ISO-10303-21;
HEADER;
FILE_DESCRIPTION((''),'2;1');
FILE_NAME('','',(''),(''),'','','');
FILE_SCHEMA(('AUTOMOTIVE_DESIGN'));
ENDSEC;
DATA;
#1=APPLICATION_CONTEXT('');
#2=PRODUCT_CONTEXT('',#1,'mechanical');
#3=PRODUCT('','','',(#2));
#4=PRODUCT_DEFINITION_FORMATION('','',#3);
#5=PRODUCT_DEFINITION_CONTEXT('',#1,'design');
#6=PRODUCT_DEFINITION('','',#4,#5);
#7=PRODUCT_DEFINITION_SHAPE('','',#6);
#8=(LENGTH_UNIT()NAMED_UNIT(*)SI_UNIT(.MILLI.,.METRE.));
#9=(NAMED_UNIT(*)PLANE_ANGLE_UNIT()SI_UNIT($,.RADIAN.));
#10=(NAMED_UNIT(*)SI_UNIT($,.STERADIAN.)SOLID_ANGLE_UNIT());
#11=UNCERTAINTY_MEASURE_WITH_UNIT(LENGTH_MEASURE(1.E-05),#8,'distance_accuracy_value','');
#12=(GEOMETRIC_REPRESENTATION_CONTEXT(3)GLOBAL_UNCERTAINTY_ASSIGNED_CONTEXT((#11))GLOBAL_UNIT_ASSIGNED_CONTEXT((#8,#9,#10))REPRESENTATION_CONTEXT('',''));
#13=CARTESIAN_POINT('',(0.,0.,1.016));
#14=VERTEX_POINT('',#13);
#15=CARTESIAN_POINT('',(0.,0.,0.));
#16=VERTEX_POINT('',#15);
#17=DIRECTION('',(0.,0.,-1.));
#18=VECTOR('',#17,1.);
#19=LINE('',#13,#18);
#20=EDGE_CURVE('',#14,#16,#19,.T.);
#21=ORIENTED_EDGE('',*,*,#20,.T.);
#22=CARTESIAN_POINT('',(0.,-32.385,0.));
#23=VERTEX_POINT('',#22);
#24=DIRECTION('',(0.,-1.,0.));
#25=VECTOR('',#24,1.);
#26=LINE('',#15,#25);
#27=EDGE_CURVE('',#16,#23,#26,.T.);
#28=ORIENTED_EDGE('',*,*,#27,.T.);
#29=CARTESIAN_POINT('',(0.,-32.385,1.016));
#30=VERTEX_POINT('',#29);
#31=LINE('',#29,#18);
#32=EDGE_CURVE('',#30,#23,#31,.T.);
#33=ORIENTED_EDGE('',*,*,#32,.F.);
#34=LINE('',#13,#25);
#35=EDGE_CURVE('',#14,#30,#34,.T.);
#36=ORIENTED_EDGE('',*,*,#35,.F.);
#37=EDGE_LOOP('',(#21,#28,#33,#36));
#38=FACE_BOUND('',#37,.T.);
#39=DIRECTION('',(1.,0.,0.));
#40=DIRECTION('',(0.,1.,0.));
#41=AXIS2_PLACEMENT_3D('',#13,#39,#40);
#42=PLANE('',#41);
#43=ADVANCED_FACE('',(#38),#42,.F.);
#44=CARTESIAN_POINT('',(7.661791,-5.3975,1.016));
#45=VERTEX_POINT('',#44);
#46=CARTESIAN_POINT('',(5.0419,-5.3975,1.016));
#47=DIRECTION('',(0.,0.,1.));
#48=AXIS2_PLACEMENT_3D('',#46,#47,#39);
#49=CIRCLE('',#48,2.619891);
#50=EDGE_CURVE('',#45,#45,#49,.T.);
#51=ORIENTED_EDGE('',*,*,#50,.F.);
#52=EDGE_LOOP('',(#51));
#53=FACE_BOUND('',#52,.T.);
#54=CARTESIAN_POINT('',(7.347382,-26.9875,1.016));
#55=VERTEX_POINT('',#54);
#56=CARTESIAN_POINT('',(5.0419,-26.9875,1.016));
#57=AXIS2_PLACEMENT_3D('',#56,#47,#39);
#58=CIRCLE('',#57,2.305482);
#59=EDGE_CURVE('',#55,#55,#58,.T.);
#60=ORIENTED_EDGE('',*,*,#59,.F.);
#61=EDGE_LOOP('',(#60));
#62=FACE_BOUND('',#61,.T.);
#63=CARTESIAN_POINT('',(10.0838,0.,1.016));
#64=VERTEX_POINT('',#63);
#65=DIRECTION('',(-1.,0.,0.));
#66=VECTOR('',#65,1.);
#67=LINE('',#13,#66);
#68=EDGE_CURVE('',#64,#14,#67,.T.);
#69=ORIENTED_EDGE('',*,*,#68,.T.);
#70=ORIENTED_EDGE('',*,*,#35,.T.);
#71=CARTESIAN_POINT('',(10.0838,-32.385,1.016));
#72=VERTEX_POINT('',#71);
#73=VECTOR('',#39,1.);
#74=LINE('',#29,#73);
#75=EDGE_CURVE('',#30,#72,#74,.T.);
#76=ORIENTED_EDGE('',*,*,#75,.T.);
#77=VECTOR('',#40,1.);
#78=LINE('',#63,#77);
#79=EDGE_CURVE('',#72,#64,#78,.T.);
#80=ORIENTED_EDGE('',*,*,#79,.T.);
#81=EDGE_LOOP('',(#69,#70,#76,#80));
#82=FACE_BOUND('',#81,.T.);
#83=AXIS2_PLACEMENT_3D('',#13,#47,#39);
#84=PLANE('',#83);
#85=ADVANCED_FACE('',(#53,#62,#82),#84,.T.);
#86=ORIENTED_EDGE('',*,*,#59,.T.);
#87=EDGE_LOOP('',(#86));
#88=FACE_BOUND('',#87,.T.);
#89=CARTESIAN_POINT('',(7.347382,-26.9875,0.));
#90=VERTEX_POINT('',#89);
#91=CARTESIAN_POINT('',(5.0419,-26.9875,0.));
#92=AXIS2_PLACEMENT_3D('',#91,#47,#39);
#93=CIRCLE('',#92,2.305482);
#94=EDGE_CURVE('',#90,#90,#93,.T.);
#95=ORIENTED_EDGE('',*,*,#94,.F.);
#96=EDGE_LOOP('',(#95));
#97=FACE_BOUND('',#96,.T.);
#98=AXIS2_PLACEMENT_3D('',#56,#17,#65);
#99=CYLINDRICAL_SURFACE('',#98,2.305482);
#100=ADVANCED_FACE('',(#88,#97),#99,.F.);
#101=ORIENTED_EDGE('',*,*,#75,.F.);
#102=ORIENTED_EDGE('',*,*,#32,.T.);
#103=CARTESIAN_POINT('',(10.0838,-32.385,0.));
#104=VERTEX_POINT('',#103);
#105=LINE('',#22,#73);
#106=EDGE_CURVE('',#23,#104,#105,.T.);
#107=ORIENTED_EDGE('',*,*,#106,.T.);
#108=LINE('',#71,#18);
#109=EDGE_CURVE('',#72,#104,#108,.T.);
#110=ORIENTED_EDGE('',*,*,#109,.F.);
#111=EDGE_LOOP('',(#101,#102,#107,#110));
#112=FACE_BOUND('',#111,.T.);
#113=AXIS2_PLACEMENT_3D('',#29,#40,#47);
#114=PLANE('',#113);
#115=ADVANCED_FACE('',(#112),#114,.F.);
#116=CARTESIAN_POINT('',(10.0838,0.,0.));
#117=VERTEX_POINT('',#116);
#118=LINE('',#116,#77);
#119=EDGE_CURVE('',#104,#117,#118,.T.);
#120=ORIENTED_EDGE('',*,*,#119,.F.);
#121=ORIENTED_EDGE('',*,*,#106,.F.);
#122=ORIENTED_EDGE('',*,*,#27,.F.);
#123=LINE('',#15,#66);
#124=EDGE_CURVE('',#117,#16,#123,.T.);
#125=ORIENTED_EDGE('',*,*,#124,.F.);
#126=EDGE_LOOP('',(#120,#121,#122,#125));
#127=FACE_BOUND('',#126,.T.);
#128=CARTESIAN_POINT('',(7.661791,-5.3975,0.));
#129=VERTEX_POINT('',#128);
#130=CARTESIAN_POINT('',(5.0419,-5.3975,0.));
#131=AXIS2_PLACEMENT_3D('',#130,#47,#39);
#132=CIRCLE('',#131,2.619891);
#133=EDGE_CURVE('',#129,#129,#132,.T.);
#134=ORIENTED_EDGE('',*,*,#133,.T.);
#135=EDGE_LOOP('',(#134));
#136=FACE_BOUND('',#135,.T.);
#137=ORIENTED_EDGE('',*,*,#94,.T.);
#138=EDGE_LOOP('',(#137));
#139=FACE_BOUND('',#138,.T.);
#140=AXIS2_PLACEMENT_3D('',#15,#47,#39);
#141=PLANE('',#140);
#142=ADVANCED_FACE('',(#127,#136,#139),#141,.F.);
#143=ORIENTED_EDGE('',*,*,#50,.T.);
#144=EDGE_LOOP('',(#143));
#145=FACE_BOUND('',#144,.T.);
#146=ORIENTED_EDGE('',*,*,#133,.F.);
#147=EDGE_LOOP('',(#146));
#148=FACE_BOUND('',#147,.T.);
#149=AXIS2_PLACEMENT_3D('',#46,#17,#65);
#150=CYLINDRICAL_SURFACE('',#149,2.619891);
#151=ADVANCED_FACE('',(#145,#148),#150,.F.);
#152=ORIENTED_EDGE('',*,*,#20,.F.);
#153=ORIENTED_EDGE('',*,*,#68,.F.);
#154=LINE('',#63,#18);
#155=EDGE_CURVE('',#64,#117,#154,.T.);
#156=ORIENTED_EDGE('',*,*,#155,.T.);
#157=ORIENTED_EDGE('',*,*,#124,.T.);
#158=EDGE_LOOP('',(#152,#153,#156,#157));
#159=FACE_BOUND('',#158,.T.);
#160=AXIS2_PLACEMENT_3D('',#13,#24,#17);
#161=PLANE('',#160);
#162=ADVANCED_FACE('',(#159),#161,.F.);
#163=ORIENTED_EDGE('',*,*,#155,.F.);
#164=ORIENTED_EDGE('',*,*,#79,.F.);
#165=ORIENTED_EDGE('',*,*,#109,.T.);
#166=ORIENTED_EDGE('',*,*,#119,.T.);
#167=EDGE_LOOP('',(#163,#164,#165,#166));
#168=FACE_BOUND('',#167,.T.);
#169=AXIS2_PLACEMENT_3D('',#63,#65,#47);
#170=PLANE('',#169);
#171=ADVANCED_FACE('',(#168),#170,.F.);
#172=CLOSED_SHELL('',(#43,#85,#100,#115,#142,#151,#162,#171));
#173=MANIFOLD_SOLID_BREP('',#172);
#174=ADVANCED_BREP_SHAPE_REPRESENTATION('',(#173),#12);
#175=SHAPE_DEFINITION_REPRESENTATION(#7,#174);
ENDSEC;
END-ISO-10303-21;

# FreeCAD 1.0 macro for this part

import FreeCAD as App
import Part
import Sketcher
Q = App.Units.Quantity


def add_polygon(sketch, points):
    """Adds a closed chain of lines whose ends are joined by coincident constraints."""
    first, n = sketch.GeometryCount, len(points)
    for a, b in zip(points, points[1:] + points[:1]):
        sketch.addGeometry(Part.LineSegment(App.Vector(*a, 0), App.Vector(*b, 0)), False)
    for i in range(n):
        sketch.addConstraint(Sketcher.Constraint("Coincident", first + i, 2, first + (i + 1) % n, 1))

doc = App.newDocument("Part")
body = doc.addObject("PartDesign::Body", "Body")

sketch1 = doc.addObject("Sketcher::SketchObject", "Sketch")
body.addObject(sketch1)
sketch1.AttachmentSupport = (doc.XY_Plane, [""])
sketch1.MapMode = "FlatFace"
add_polygon(sketch1, [(0, 0), (0, -32.4), (10.1, -32.4), (10.1, 0)])
sketch1.addGeometry(Part.Circle(App.Vector(5, -27, 0), App.Vector(0, 0, 1), 2.3), False)
sketch1.addGeometry(Part.Circle(App.Vector(5, -5.4, 0), App.Vector(0, 0, 1), 2.6), False)
sketch1.addConstraint(Sketcher.Constraint("Vertical", 0))
sketch1.addConstraint(Sketcher.Constraint("Horizontal", 1))
sketch1.addConstraint(Sketcher.Constraint("Vertical", 2))
sketch1.addConstraint(Sketcher.Constraint("Horizontal", 3))
sketch1.addConstraint(Sketcher.Constraint("Coincident", 3, 2, -1, 1))
sketch1.addConstraint(Sketcher.Constraint("Vertical", 4, 3, 5, 3))
sketch1.addConstraint(Sketcher.Constraint("DistanceX", 1, 1, 1, 2, Q("0.397 in")))
sketch1.addConstraint(Sketcher.Constraint("DistanceY", 0, 2, 0, 1, Q("1.275 in")))
sketch1.addConstraint(Sketcher.Constraint("DistanceY", 4, 3, 5, 3, Q("0.85 in")))
sketch1.addConstraint(Sketcher.Constraint("DistanceY", 4, 3, -1, 1, Q("1.0625 in")))
sketch1.addConstraint(Sketcher.Constraint("Diameter", 4, 4.610963))
sketch1.addConstraint(Sketcher.Constraint("Diameter", 5, 5.239782))
sketch1.addConstraint(Sketcher.Constraint("DistanceX", -1, 1, 4, 3, Q("0.1985 in")))
pad1 = doc.addObject("PartDesign::Pad", "Pad")
body.addObject(pad1)
pad1.Profile = sketch1
pad1.Length = Q("0.04 in")

doc.recompute()
